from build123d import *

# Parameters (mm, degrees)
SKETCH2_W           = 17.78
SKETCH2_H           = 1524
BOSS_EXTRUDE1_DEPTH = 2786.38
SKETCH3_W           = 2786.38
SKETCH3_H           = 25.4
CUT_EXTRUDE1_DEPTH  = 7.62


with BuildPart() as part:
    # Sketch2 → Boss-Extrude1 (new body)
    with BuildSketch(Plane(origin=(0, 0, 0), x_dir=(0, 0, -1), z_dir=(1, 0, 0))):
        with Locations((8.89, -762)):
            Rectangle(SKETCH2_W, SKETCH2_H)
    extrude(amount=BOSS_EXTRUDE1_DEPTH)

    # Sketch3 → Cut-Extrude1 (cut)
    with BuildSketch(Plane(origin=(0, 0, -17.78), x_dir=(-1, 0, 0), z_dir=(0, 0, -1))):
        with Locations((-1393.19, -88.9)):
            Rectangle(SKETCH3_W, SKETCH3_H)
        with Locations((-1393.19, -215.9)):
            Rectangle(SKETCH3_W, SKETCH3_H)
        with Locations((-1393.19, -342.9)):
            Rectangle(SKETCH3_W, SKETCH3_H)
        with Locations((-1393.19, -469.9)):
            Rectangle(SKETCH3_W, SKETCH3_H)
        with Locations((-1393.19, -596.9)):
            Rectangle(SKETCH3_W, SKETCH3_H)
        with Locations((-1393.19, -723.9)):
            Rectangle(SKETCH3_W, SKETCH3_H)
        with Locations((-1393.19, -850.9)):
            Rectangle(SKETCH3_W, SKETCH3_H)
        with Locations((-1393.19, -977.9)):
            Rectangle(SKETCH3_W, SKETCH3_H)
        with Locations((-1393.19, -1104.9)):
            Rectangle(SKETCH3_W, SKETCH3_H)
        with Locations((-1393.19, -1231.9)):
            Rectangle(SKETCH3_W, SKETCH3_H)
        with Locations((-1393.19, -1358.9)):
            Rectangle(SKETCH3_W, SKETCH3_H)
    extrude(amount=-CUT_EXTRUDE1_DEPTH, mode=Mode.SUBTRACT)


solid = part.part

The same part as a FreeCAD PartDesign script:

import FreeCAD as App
import Part
import Sketcher
from FreeCAD import Vector
Q = App.Units.Quantity

doc = App.newDocument("Part")
body = doc.addObject("PartDesign::Body", "Body")

sketch1 = body.newObject("Sketcher::SketchObject", "Sketch")
sketch1.AttachmentSupport = (doc.getObject("YZ_Plane"), [""])
sketch1.MapMode = "FlatFace"
sketch1.addGeometry(Part.LineSegment(Vector(0, 0, 0), Vector(-1524, 0, 0)), False)
sketch1.addGeometry(Part.LineSegment(Vector(-1524, 0, 0), Vector(-1524, -17.78, 0)), False)
sketch1.addGeometry(Part.LineSegment(Vector(-1524, -17.78, 0), Vector(0, -17.78, 0)), False)
sketch1.addGeometry(Part.LineSegment(Vector(0, -17.78, 0), Vector(0, 0, 0)), False)
sketch1.addConstraint(Sketcher.Constraint("Coincident", 0, 2, 1, 1))
sketch1.addConstraint(Sketcher.Constraint("Coincident", 1, 2, 2, 1))
sketch1.addConstraint(Sketcher.Constraint("Coincident", 2, 2, 3, 1))
sketch1.addConstraint(Sketcher.Constraint("Coincident", 3, 2, 0, 1))
sketch1.addConstraint(Sketcher.Constraint("Horizontal", 0))
sketch1.addConstraint(Sketcher.Constraint("Vertical", 1))
sketch1.addConstraint(Sketcher.Constraint("Horizontal", 2))
sketch1.addConstraint(Sketcher.Constraint("Vertical", 3))
sketch1.addConstraint(Sketcher.Constraint("Coincident", 3, 2, -1, 1))
sketch1.addConstraint(Sketcher.Constraint("DistanceX", 0, 2, 0, 1, Q("60 in")))
sketch1.addConstraint(Sketcher.Constraint("DistanceY", 1, 2, 1, 1, Q("0.7 in")))
pad1 = body.newObject("PartDesign::Pad", "Pad")
pad1.Profile = sketch1
pad1.Length = Q("109.7 in")

sketch2 = body.newObject("Sketcher::SketchObject", "Sketch001")
sketch2.AttachmentSupport = (doc.getObject("XY_Plane"), [""])
sketch2.MapMode = "FlatFace"
sketch2.AttachmentOffset = App.Placement(Vector(0, 0, -0.7 * 25.4), App.Rotation())
sketch2.addGeometry(Part.LineSegment(Vector(2786.38, -76.2, 0), Vector(2786.38, -101.6, 0)), False)
sketch2.addGeometry(Part.LineSegment(Vector(2786.38, -101.6, 0), Vector(0, -101.6, 0)), False)
sketch2.addGeometry(Part.LineSegment(Vector(0, -101.6, 0), Vector(0, -76.2, 0)), False)
sketch2.addGeometry(Part.LineSegment(Vector(0, -76.2, 0), Vector(2786.38, -76.2, 0)), False)
sketch2.addGeometry(Part.LineSegment(Vector(2786.38, -203.2, 0), Vector(2786.38, -228.6, 0)), False)
sketch2.addGeometry(Part.LineSegment(Vector(2786.38, -228.6, 0), Vector(0, -228.6, 0)), False)
sketch2.addGeometry(Part.LineSegment(Vector(0, -228.6, 0), Vector(0, -203.2, 0)), False)
sketch2.addGeometry(Part.LineSegment(Vector(0, -203.2, 0), Vector(2786.38, -203.2, 0)), False)
sketch2.addGeometry(Part.LineSegment(Vector(2786.38, -330.2, 0), Vector(2786.38, -355.6, 0)), False)
sketch2.addGeometry(Part.LineSegment(Vector(2786.38, -355.6, 0), Vector(0, -355.6, 0)), False)
sketch2.addGeometry(Part.LineSegment(Vector(0, -355.6, 0), Vector(0, -330.2, 0)), False)
sketch2.addGeometry(Part.LineSegment(Vector(0, -330.2, 0), Vector(2786.38, -330.2, 0)), False)
sketch2.addGeometry(Part.LineSegment(Vector(2786.38, -457.2, 0), Vector(2786.38, -482.6, 0)), False)
sketch2.addGeometry(Part.LineSegment(Vector(2786.38, -482.6, 0), Vector(0, -482.6, 0)), False)
sketch2.addGeometry(Part.LineSegment(Vector(0, -482.6, 0), Vector(0, -457.2, 0)), False)
sketch2.addGeometry(Part.LineSegment(Vector(0, -457.2, 0), Vector(2786.38, -457.2, 0)), False)
sketch2.addGeometry(Part.LineSegment(Vector(2786.38, -584.2, 0), Vector(2786.38, -609.6, 0)), False)
sketch2.addGeometry(Part.LineSegment(Vector(2786.38, -609.6, 0), Vector(0, -609.6, 0)), False)
sketch2.addGeometry(Part.LineSegment(Vector(0, -609.6, 0), Vector(0, -584.2, 0)), False)
sketch2.addGeometry(Part.LineSegment(Vector(0, -584.2, 0), Vector(2786.38, -584.2, 0)), False)
sketch2.addGeometry(Part.LineSegment(Vector(2786.38, -711.2, 0), Vector(2786.38, -736.6, 0)), False)
sketch2.addGeometry(Part.LineSegment(Vector(2786.38, -736.6, 0), Vector(0, -736.6, 0)), False)
sketch2.addGeometry(Part.LineSegment(Vector(0, -736.6, 0), Vector(0, -711.2, 0)), False)
sketch2.addGeometry(Part.LineSegment(Vector(0, -711.2, 0), Vector(2786.38, -711.2, 0)), False)
sketch2.addGeometry(Part.LineSegment(Vector(2786.38, -838.2, 0), Vector(2786.38, -863.6, 0)), False)
sketch2.addGeometry(Part.LineSegment(Vector(2786.38, -863.6, 0), Vector(0, -863.6, 0)), False)
sketch2.addGeometry(Part.LineSegment(Vector(0, -863.6, 0), Vector(0, -838.2, 0)), False)
sketch2.addGeometry(Part.LineSegment(Vector(0, -838.2, 0), Vector(2786.38, -838.2, 0)), False)
sketch2.addGeometry(Part.LineSegment(Vector(2786.38, -965.2, 0), Vector(2786.38, -990.6, 0)), False)
sketch2.addGeometry(Part.LineSegment(Vector(2786.38, -990.6, 0), Vector(0, -990.6, 0)), False)
sketch2.addGeometry(Part.LineSegment(Vector(0, -990.6, 0), Vector(0, -965.2, 0)), False)
sketch2.addGeometry(Part.LineSegment(Vector(0, -965.2, 0), Vector(2786.38, -965.2, 0)), False)
sketch2.addGeometry(Part.LineSegment(Vector(2786.38, -1092.2, 0), Vector(2786.38, -1117.6, 0)), False)
sketch2.addGeometry(Part.LineSegment(Vector(2786.38, -1117.6, 0), Vector(0, -1117.6, 0)), False)
sketch2.addGeometry(Part.LineSegment(Vector(0, -1117.6, 0), Vector(0, -1092.2, 0)), False)
sketch2.addGeometry(Part.LineSegment(Vector(0, -1092.2, 0), Vector(2786.38, -1092.2, 0)), False)
sketch2.addGeometry(Part.LineSegment(Vector(2786.38, -1219.2, 0), Vector(2786.38, -1244.6, 0)), False)
sketch2.addGeometry(Part.LineSegment(Vector(2786.38, -1244.6, 0), Vector(0, -1244.6, 0)), False)
sketch2.addGeometry(Part.LineSegment(Vector(0, -1244.6, 0), Vector(0, -1219.2, 0)), False)
sketch2.addGeometry(Part.LineSegment(Vector(0, -1219.2, 0), Vector(2786.38, -1219.2, 0)), False)
sketch2.addGeometry(Part.LineSegment(Vector(2786.38, -1346.2, 0), Vector(2786.38, -1371.6, 0)), False)
sketch2.addGeometry(Part.LineSegment(Vector(2786.38, -1371.6, 0), Vector(0, -1371.6, 0)), False)
sketch2.addGeometry(Part.LineSegment(Vector(0, -1371.6, 0), Vector(0, -1346.2, 0)), False)
sketch2.addGeometry(Part.LineSegment(Vector(0, -1346.2, 0), Vector(2786.38, -1346.2, 0)), False)
sketch2.addConstraint(Sketcher.Constraint("Coincident", 0, 2, 1, 1))
sketch2.addConstraint(Sketcher.Constraint("Coincident", 1, 2, 2, 1))
sketch2.addConstraint(Sketcher.Constraint("Coincident", 2, 2, 3, 1))
sketch2.addConstraint(Sketcher.Constraint("Coincident", 3, 2, 0, 1))
sketch2.addConstraint(Sketcher.Constraint("Coincident", 4, 2, 5, 1))
sketch2.addConstraint(Sketcher.Constraint("Coincident", 5, 2, 6, 1))
sketch2.addConstraint(Sketcher.Constraint("Coincident", 6, 2, 7, 1))
sketch2.addConstraint(Sketcher.Constraint("Coincident", 7, 2, 4, 1))
sketch2.addConstraint(Sketcher.Constraint("Coincident", 8, 2, 9, 1))
sketch2.addConstraint(Sketcher.Constraint("Coincident", 9, 2, 10, 1))
sketch2.addConstraint(Sketcher.Constraint("Coincident", 10, 2, 11, 1))
sketch2.addConstraint(Sketcher.Constraint("Coincident", 11, 2, 8, 1))
sketch2.addConstraint(Sketcher.Constraint("Coincident", 12, 2, 13, 1))
sketch2.addConstraint(Sketcher.Constraint("Coincident", 13, 2, 14, 1))
sketch2.addConstraint(Sketcher.Constraint("Coincident", 14, 2, 15, 1))
sketch2.addConstraint(Sketcher.Constraint("Coincident", 15, 2, 12, 1))
sketch2.addConstraint(Sketcher.Constraint("Coincident", 16, 2, 17, 1))
sketch2.addConstraint(Sketcher.Constraint("Coincident", 17, 2, 18, 1))
sketch2.addConstraint(Sketcher.Constraint("Coincident", 18, 2, 19, 1))
sketch2.addConstraint(Sketcher.Constraint("Coincident", 19, 2, 16, 1))
sketch2.addConstraint(Sketcher.Constraint("Coincident", 20, 2, 21, 1))
sketch2.addConstraint(Sketcher.Constraint("Coincident", 21, 2, 22, 1))
sketch2.addConstraint(Sketcher.Constraint("Coincident", 22, 2, 23, 1))
sketch2.addConstraint(Sketcher.Constraint("Coincident", 23, 2, 20, 1))
sketch2.addConstraint(Sketcher.Constraint("Coincident", 24, 2, 25, 1))
sketch2.addConstraint(Sketcher.Constraint("Coincident", 25, 2, 26, 1))
sketch2.addConstraint(Sketcher.Constraint("Coincident", 26, 2, 27, 1))
sketch2.addConstraint(Sketcher.Constraint("Coincident", 27, 2, 24, 1))
sketch2.addConstraint(Sketcher.Constraint("Coincident", 28, 2, 29, 1))
sketch2.addConstraint(Sketcher.Constraint("Coincident", 29, 2, 30, 1))
sketch2.addConstraint(Sketcher.Constraint("Coincident", 30, 2, 31, 1))
sketch2.addConstraint(Sketcher.Constraint("Coincident", 31, 2, 28, 1))
sketch2.addConstraint(Sketcher.Constraint("Coincident", 32, 2, 33, 1))
sketch2.addConstraint(Sketcher.Constraint("Coincident", 33, 2, 34, 1))
sketch2.addConstraint(Sketcher.Constraint("Coincident", 34, 2, 35, 1))
sketch2.addConstraint(Sketcher.Constraint("Coincident", 35, 2, 32, 1))
sketch2.addConstraint(Sketcher.Constraint("Coincident", 36, 2, 37, 1))
sketch2.addConstraint(Sketcher.Constraint("Coincident", 37, 2, 38, 1))
sketch2.addConstraint(Sketcher.Constraint("Coincident", 38, 2, 39, 1))
sketch2.addConstraint(Sketcher.Constraint("Coincident", 39, 2, 36, 1))
sketch2.addConstraint(Sketcher.Constraint("Coincident", 40, 2, 41, 1))
sketch2.addConstraint(Sketcher.Constraint("Coincident", 41, 2, 42, 1))
sketch2.addConstraint(Sketcher.Constraint("Coincident", 42, 2, 43, 1))
sketch2.addConstraint(Sketcher.Constraint("Coincident", 43, 2, 40, 1))
sketch2.addConstraint(Sketcher.Constraint("Vertical", 0))
sketch2.addConstraint(Sketcher.Constraint("Horizontal", 1))
sketch2.addConstraint(Sketcher.Constraint("Vertical", 2))
sketch2.addConstraint(Sketcher.Constraint("Horizontal", 3))
sketch2.addConstraint(Sketcher.Constraint("Vertical", 4))
sketch2.addConstraint(Sketcher.Constraint("Horizontal", 5))
sketch2.addConstraint(Sketcher.Constraint("Vertical", 6))
sketch2.addConstraint(Sketcher.Constraint("Horizontal", 7))
sketch2.addConstraint(Sketcher.Constraint("Vertical", 8))
sketch2.addConstraint(Sketcher.Constraint("Horizontal", 9))
sketch2.addConstraint(Sketcher.Constraint("Vertical", 10))
sketch2.addConstraint(Sketcher.Constraint("Horizontal", 11))
sketch2.addConstraint(Sketcher.Constraint("Vertical", 12))
sketch2.addConstraint(Sketcher.Constraint("Horizontal", 13))
sketch2.addConstraint(Sketcher.Constraint("Vertical", 14))
sketch2.addConstraint(Sketcher.Constraint("Horizontal", 15))
sketch2.addConstraint(Sketcher.Constraint("Vertical", 16))
sketch2.addConstraint(Sketcher.Constraint("Horizontal", 17))
sketch2.addConstraint(Sketcher.Constraint("Vertical", 18))
sketch2.addConstraint(Sketcher.Constraint("Horizontal", 19))
sketch2.addConstraint(Sketcher.Constraint("Vertical", 20))
sketch2.addConstraint(Sketcher.Constraint("Horizontal", 21))
sketch2.addConstraint(Sketcher.Constraint("Vertical", 22))
sketch2.addConstraint(Sketcher.Constraint("Horizontal", 23))
sketch2.addConstraint(Sketcher.Constraint("Vertical", 24))
sketch2.addConstraint(Sketcher.Constraint("Horizontal", 25))
sketch2.addConstraint(Sketcher.Constraint("Vertical", 26))
sketch2.addConstraint(Sketcher.Constraint("Horizontal", 27))
sketch2.addConstraint(Sketcher.Constraint("Vertical", 28))
sketch2.addConstraint(Sketcher.Constraint("Horizontal", 29))
sketch2.addConstraint(Sketcher.Constraint("Vertical", 30))
sketch2.addConstraint(Sketcher.Constraint("Horizontal", 31))
sketch2.addConstraint(Sketcher.Constraint("Vertical", 32))
sketch2.addConstraint(Sketcher.Constraint("Horizontal", 33))
sketch2.addConstraint(Sketcher.Constraint("Vertical", 34))
sketch2.addConstraint(Sketcher.Constraint("Horizontal", 35))
sketch2.addConstraint(Sketcher.Constraint("Vertical", 36))
sketch2.addConstraint(Sketcher.Constraint("Horizontal", 37))
sketch2.addConstraint(Sketcher.Constraint("Vertical", 38))
sketch2.addConstraint(Sketcher.Constraint("Horizontal", 39))
sketch2.addConstraint(Sketcher.Constraint("Vertical", 40))
sketch2.addConstraint(Sketcher.Constraint("Horizontal", 41))
sketch2.addConstraint(Sketcher.Constraint("Vertical", 42))
sketch2.addConstraint(Sketcher.Constraint("Horizontal", 43))
sketch2.addConstraint(Sketcher.Constraint("PointOnObject", 1, 2, -2))
sketch2.addConstraint(Sketcher.Constraint("PointOnObject", 5, 2, -2))
sketch2.addConstraint(Sketcher.Constraint("PointOnObject", 9, 2, -2))
sketch2.addConstraint(Sketcher.Constraint("PointOnObject", 13, 2, -2))
sketch2.addConstraint(Sketcher.Constraint("PointOnObject", 17, 2, -2))
sketch2.addConstraint(Sketcher.Constraint("PointOnObject", 21, 2, -2))
sketch2.addConstraint(Sketcher.Constraint("PointOnObject", 25, 2, -2))
sketch2.addConstraint(Sketcher.Constraint("PointOnObject", 29, 2, -2))
sketch2.addConstraint(Sketcher.Constraint("PointOnObject", 33, 2, -2))
sketch2.addConstraint(Sketcher.Constraint("PointOnObject", 37, 2, -2))
sketch2.addConstraint(Sketcher.Constraint("PointOnObject", 41, 2, -2))
sketch2.addConstraint(Sketcher.Constraint("Vertical", 3, 2, 4, 2))
sketch2.addConstraint(Sketcher.Constraint("Vertical", 7, 2, 8, 2))
sketch2.addConstraint(Sketcher.Constraint("Vertical", 11, 2, 12, 2))
sketch2.addConstraint(Sketcher.Constraint("Vertical", 15, 2, 16, 2))
sketch2.addConstraint(Sketcher.Constraint("Vertical", 19, 2, 20, 2))
sketch2.addConstraint(Sketcher.Constraint("Vertical", 23, 2, 24, 2))
sketch2.addConstraint(Sketcher.Constraint("Vertical", 27, 2, 28, 2))
sketch2.addConstraint(Sketcher.Constraint("Vertical", 31, 2, 32, 2))
sketch2.addConstraint(Sketcher.Constraint("Vertical", 35, 2, 36, 2))
sketch2.addConstraint(Sketcher.Constraint("Vertical", 39, 2, 40, 2))
sketch2.addConstraint(Sketcher.Constraint("Equal", 2, 4))
sketch2.addConstraint(Sketcher.Constraint("Equal", 6, 8))
sketch2.addConstraint(Sketcher.Constraint("Equal", 10, 12))
sketch2.addConstraint(Sketcher.Constraint("Equal", 14, 16))
sketch2.addConstraint(Sketcher.Constraint("Equal", 18, 20))
sketch2.addConstraint(Sketcher.Constraint("Equal", 22, 24))
sketch2.addConstraint(Sketcher.Constraint("Equal", 26, 28))
sketch2.addConstraint(Sketcher.Constraint("Equal", 30, 32))
sketch2.addConstraint(Sketcher.Constraint("Equal", 34, 36))
sketch2.addConstraint(Sketcher.Constraint("Equal", 38, 40))
sketch2.addConstraint(Sketcher.Constraint("DistanceY", 0, 2, 0, 1, Q("1 in")))
sketch2.addConstraint(Sketcher.Constraint("DistanceX", 1, 2, 1, 1, Q("109.7 in")))
sketch2.addConstraint(Sketcher.Constraint("DistanceY", 0, 2, -1, 1, Q("4 in")))
sketch2.addConstraint(Sketcher.Constraint("DistanceY", 4, 2, -1, 1, Q("9 in")))
sketch2.addConstraint(Sketcher.Constraint("DistanceY", 8, 2, -1, 1, Q("14 in")))
sketch2.addConstraint(Sketcher.Constraint("DistanceY", 12, 2, -1, 1, Q("19 in")))
sketch2.addConstraint(Sketcher.Constraint("DistanceY", 16, 2, -1, 1, Q("24 in")))
sketch2.addConstraint(Sketcher.Constraint("DistanceY", 20, 2, -1, 1, Q("29 in")))
sketch2.addConstraint(Sketcher.Constraint("DistanceY", 24, 2, -1, 1, Q("34 in")))
sketch2.addConstraint(Sketcher.Constraint("DistanceY", 28, 2, -1, 1, Q("39 in")))
sketch2.addConstraint(Sketcher.Constraint("DistanceY", 32, 2, -1, 1, Q("44 in")))
sketch2.addConstraint(Sketcher.Constraint("DistanceY", 36, 2, -1, 1, Q("49 in")))
sketch2.addConstraint(Sketcher.Constraint("DistanceY", 40, 2, -1, 1, Q("54 in")))
pocket1 = body.newObject("PartDesign::Pocket", "Pocket")
pocket1.Profile = sketch2
pocket1.Length = Q("0.3 in")
pocket1.Reversed = True

doc.recompute()
